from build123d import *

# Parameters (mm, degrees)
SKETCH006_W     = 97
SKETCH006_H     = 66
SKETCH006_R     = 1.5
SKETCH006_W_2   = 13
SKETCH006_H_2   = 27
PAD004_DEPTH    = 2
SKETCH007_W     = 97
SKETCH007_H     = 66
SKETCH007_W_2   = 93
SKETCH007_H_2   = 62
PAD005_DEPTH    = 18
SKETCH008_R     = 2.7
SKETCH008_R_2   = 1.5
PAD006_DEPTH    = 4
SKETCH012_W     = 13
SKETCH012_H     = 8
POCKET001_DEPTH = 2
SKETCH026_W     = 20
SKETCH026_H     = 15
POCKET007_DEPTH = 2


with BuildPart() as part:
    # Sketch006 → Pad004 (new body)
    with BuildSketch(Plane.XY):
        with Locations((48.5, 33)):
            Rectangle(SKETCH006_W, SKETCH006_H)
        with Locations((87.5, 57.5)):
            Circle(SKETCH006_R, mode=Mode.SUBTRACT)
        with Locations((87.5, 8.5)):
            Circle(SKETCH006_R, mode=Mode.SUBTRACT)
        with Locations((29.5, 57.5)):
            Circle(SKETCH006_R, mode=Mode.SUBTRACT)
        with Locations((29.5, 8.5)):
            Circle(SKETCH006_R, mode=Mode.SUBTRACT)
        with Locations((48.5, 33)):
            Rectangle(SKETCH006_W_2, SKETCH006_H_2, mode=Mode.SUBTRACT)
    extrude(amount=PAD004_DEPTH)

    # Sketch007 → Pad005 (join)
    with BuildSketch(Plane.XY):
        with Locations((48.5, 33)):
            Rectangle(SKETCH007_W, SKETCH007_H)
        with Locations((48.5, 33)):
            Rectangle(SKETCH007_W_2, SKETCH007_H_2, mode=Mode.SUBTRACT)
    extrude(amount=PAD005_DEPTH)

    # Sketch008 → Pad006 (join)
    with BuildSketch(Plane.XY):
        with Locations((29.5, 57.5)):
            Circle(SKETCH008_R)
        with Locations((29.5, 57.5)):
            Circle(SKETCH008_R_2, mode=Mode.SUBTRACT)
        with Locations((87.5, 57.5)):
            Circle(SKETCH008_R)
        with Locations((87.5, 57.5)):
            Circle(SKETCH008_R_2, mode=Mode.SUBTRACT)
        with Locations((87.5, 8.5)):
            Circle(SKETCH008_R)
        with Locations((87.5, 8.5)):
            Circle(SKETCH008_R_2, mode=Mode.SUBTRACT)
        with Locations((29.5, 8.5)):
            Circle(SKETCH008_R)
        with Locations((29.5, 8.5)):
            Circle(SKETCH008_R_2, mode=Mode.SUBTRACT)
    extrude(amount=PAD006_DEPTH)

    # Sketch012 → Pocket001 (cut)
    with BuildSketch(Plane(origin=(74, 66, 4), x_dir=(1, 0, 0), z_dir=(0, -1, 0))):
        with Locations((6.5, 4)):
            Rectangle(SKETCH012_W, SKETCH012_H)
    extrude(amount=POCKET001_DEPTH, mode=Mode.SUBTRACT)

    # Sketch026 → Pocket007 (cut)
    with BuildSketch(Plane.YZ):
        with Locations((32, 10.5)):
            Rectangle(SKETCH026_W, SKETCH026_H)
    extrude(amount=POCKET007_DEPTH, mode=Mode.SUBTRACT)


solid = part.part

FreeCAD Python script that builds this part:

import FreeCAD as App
import Part
import Sketcher

doc = App.newDocument("Part")
body = doc.addObject("PartDesign::Body", "Body")

# Sketch on XY plane
sketch1 = doc.addObject("Sketcher::SketchObject", "Sketch")
body.addObject(sketch1)
sketch1.AttachmentSupport = (doc.XY_Plane, [""])
sketch1.MapMode = "FlatFace"
sketch1.addGeometry([
    Part.LineSegment(App.Vector(0, 66, 0), App.Vector(0, 0, 0)),  # 0
    Part.LineSegment(App.Vector(0, 0, 0), App.Vector(97, 0, 0)),  # 1
    Part.LineSegment(App.Vector(97, 0, 0), App.Vector(97, 66, 0)),  # 2
    Part.LineSegment(App.Vector(97, 66, 0), App.Vector(0, 66, 0)),  # 3
    Part.Circle(App.Vector(29.5, 8.5, 0), App.Vector(0, 0, 1), 1.5),  # 4
    Part.Circle(App.Vector(87.5, 8.5, 0), App.Vector(0, 0, 1), 1.5),  # 5
    Part.LineSegment(App.Vector(55, 19.5, 0), App.Vector(42, 19.5, 0)),  # 6
    Part.LineSegment(App.Vector(42, 19.5, 0), App.Vector(42, 46.5, 0)),  # 7
    Part.LineSegment(App.Vector(42, 46.5, 0), App.Vector(55, 46.5, 0)),  # 8
    Part.LineSegment(App.Vector(55, 46.5, 0), App.Vector(55, 19.5, 0)),  # 9
    Part.Circle(App.Vector(29.5, 57.5, 0), App.Vector(0, 0, 1), 1.5),  # 10
    Part.Circle(App.Vector(87.5, 57.5, 0), App.Vector(0, 0, 1), 1.5),  # 11
], False)
sketch1.addConstraint([
    Sketcher.Constraint("Coincident", 0, 2, 1, 1),
    Sketcher.Constraint("Coincident", 1, 2, 2, 1),
    Sketcher.Constraint("Coincident", 2, 2, 3, 1),
    Sketcher.Constraint("Coincident", 3, 2, 0, 1),
    Sketcher.Constraint("Coincident", 6, 2, 7, 1),
    Sketcher.Constraint("Coincident", 7, 2, 8, 1),
    Sketcher.Constraint("Coincident", 8, 2, 9, 1),
    Sketcher.Constraint("Coincident", 9, 2, 6, 1),
    Sketcher.Constraint("Vertical", 0),
    Sketcher.Constraint("Horizontal", 1),
    Sketcher.Constraint("Vertical", 2),
    Sketcher.Constraint("Horizontal", 3),
    Sketcher.Constraint("Horizontal", 6),
    Sketcher.Constraint("Vertical", 7),
    Sketcher.Constraint("Horizontal", 8),
    Sketcher.Constraint("Vertical", 9),
    Sketcher.Constraint("Coincident", 0, 2, -1, 1),
    Sketcher.Constraint("Equal", 4, 5),
    Sketcher.Constraint("Equal", 5, 10),
    Sketcher.Constraint("Equal", 10, 11),
    Sketcher.Constraint("Horizontal", 4, 3, 5, 3),
    Sketcher.Constraint("Horizontal", 10, 3, 11, 3),
    Sketcher.Constraint("Vertical", 4, 3, 10, 3),
    Sketcher.Constraint("Vertical", 5, 3, 11, 3),
    Sketcher.Constraint("Diameter", 4, 3.0),
    Sketcher.Constraint("DistanceX", 1, 1, 1, 2, 97.0),
    Sketcher.Constraint("DistanceX", 6, 2, 6, 1, 13.0),
    Sketcher.Constraint("DistanceY", 0, 2, 0, 1, 66.0),
    Sketcher.Constraint("DistanceY", 7, 1, 7, 2, 27.0),
    Sketcher.Constraint("DistanceX", -1, 1, 6, 2, 42.0),
    Sketcher.Constraint("DistanceX", 4, 3, 5, 3, 58.0),
    Sketcher.Constraint("DistanceY", 4, 3, 10, 3, 49.0),
    Sketcher.Constraint("DistanceY", 4, 3, 6, 2, 11.0),
    Sketcher.Constraint("DistanceX", -1, 1, 4, 3, 29.5),
    Sketcher.Constraint("DistanceY", -1, 1, 4, 3, 8.5),
])
pad1 = doc.addObject("PartDesign::Pad", "Pad")
body.addObject(pad1)
pad1.Profile = sketch1
pad1.Length = 2

# Sketch on XY plane
sketch2 = doc.addObject("Sketcher::SketchObject", "Sketch001")
body.addObject(sketch2)
sketch2.AttachmentSupport = (doc.XY_Plane, [""])
sketch2.MapMode = "FlatFace"
sketch2.addGeometry([
    Part.LineSegment(App.Vector(0, 66, 0), App.Vector(0, 0, 0)),  # 0
    Part.LineSegment(App.Vector(0, 0, 0), App.Vector(97, 0, 0)),  # 1
    Part.LineSegment(App.Vector(97, 0, 0), App.Vector(97, 66, 0)),  # 2
    Part.LineSegment(App.Vector(97, 66, 0), App.Vector(0, 66, 0)),  # 3
    Part.LineSegment(App.Vector(95, 2, 0), App.Vector(2, 2, 0)),  # 4
    Part.LineSegment(App.Vector(2, 2, 0), App.Vector(2, 64, 0)),  # 5
    Part.LineSegment(App.Vector(2, 64, 0), App.Vector(95, 64, 0)),  # 6
    Part.LineSegment(App.Vector(95, 64, 0), App.Vector(95, 2, 0)),  # 7
], False)
sketch2.addConstraint([
    Sketcher.Constraint("Coincident", 0, 2, 1, 1),
    Sketcher.Constraint("Coincident", 1, 2, 2, 1),
    Sketcher.Constraint("Coincident", 2, 2, 3, 1),
    Sketcher.Constraint("Coincident", 3, 2, 0, 1),
    Sketcher.Constraint("Coincident", 4, 2, 5, 1),
    Sketcher.Constraint("Coincident", 5, 2, 6, 1),
    Sketcher.Constraint("Coincident", 6, 2, 7, 1),
    Sketcher.Constraint("Coincident", 7, 2, 4, 1),
    Sketcher.Constraint("Vertical", 0),
    Sketcher.Constraint("Horizontal", 1),
    Sketcher.Constraint("Vertical", 2),
    Sketcher.Constraint("Horizontal", 3),
    Sketcher.Constraint("Horizontal", 4),
    Sketcher.Constraint("Vertical", 5),
    Sketcher.Constraint("Horizontal", 6),
    Sketcher.Constraint("Vertical", 7),
    Sketcher.Constraint("Coincident", 0, 2, -1, 1),
    Sketcher.Constraint("DistanceX", 1, 1, 1, 2, 97.0),
    Sketcher.Constraint("DistanceX", 4, 2, 4, 1, 93.0),
    Sketcher.Constraint("DistanceY", 0, 2, 0, 1, 66.0),
    Sketcher.Constraint("DistanceY", 5, 1, 5, 2, 62.0),
    Sketcher.Constraint("DistanceX", -1, 1, 4, 2, 2.0),
    Sketcher.Constraint("DistanceY", -1, 1, 4, 2, 2.0),
])
pad2 = doc.addObject("PartDesign::Pad", "Pad001")
body.addObject(pad2)
pad2.Profile = sketch2
pad2.Length = 18

# Sketch on XY plane
sketch3 = doc.addObject("Sketcher::SketchObject", "Sketch002")
body.addObject(sketch3)
sketch3.AttachmentSupport = (doc.XY_Plane, [""])
sketch3.MapMode = "FlatFace"
sketch3.addGeometry([
    Part.Circle(App.Vector(29.5, 57.5, 0), App.Vector(0, 0, 1), 2.7),  # 0
    Part.Circle(App.Vector(29.5, 57.5, 0), App.Vector(0, 0, 1), 1.5),  # 1
    Part.Circle(App.Vector(87.5, 57.5, 0), App.Vector(0, 0, 1), 2.7),  # 2
    Part.Circle(App.Vector(87.5, 57.5, 0), App.Vector(0, 0, 1), 1.5),  # 3
    Part.Circle(App.Vector(87.5, 8.5, 0), App.Vector(0, 0, 1), 2.7),  # 4
    Part.Circle(App.Vector(87.5, 8.5, 0), App.Vector(0, 0, 1), 1.5),  # 5
    Part.Circle(App.Vector(29.5, 8.5, 0), App.Vector(0, 0, 1), 2.7),  # 6
    Part.Circle(App.Vector(29.5, 8.5, 0), App.Vector(0, 0, 1), 1.5),  # 7
], False)
sketch3.addConstraint([
    Sketcher.Constraint("Coincident", 1, 3, 0, 3),
    Sketcher.Constraint("Coincident", 3, 3, 2, 3),
    Sketcher.Constraint("Coincident", 5, 3, 4, 3),
    Sketcher.Constraint("Coincident", 7, 3, 6, 3),
    Sketcher.Constraint("Equal", 0, 2),
    Sketcher.Constraint("Equal", 1, 3),
    Sketcher.Constraint("Equal", 2, 4),
    Sketcher.Constraint("Equal", 3, 5),
    Sketcher.Constraint("Equal", 4, 6),
    Sketcher.Constraint("Equal", 5, 7),
    Sketcher.Constraint("Horizontal", 1, 3, 2, 3),
    Sketcher.Constraint("Horizontal", 5, 3, 6, 3),
    Sketcher.Constraint("Vertical", 3, 3, 4, 3),
    Sketcher.Constraint("Vertical", 1, 3, 6, 3),
    Sketcher.Constraint("Diameter", 1, 3.0),
    Sketcher.Constraint("Diameter", 0, 5.4),
    Sketcher.Constraint("DistanceX", 0, 3, 2, 3, 58.0),
    Sketcher.Constraint("DistanceY", 4, 3, 2, 3, 49.0),
    Sketcher.Constraint("DistanceX", -1, 1, 0, 3, 29.5),
    Sketcher.Constraint("DistanceY", -1, 1, 0, 3, 57.5),
])
pad3 = doc.addObject("PartDesign::Pad", "Pad002")
body.addObject(pad3)
pad3.Profile = sketch3
pad3.Length = 4

# Sketch on XZ plane
sketch4 = doc.addObject("Sketcher::SketchObject", "Sketch003")
body.addObject(sketch4)
sketch4.AttachmentSupport = (doc.XZ_Plane, [""])
sketch4.MapMode = "FlatFace"
sketch4.AttachmentOffset = App.Placement(App.Vector(0, 0, -66), App.Rotation())
sketch4.addGeometry([
    Part.LineSegment(App.Vector(74, 12, 0), App.Vector(74, 4, 0)),
    Part.LineSegment(App.Vector(74, 4, 0), App.Vector(87, 4, 0)),
    Part.LineSegment(App.Vector(87, 4, 0), App.Vector(87, 12, 0)),
    Part.LineSegment(App.Vector(87, 12, 0), App.Vector(74, 12, 0)),
], False)
sketch4.addConstraint([
    Sketcher.Constraint("Coincident", 0, 2, 1, 1),
    Sketcher.Constraint("Coincident", 1, 2, 2, 1),
    Sketcher.Constraint("Coincident", 2, 2, 3, 1),
    Sketcher.Constraint("Coincident", 3, 2, 0, 1),
    Sketcher.Constraint("Vertical", 0),
    Sketcher.Constraint("Horizontal", 1),
    Sketcher.Constraint("Vertical", 2),
    Sketcher.Constraint("Horizontal", 3),
    Sketcher.Constraint("DistanceX", 1, 1, 1, 2, 13.0),
    Sketcher.Constraint("DistanceY", 0, 2, 0, 1, 8.0),
    Sketcher.Constraint("DistanceX", -1, 1, 0, 2, 74.0),
    Sketcher.Constraint("DistanceY", -1, 1, 0, 2, 4.0),
])
pocket1 = doc.addObject("PartDesign::Pocket", "Pocket")
body.addObject(pocket1)
pocket1.Profile = sketch4
pocket1.Length = 2
pocket1.Reversed = True

# Sketch on YZ plane
sketch5 = doc.addObject("Sketcher::SketchObject", "Sketch004")
body.addObject(sketch5)
sketch5.AttachmentSupport = (doc.YZ_Plane, [""])
sketch5.MapMode = "FlatFace"
sketch5.addGeometry([
    Part.LineSegment(App.Vector(22, 18, 0), App.Vector(22, 3, 0)),
    Part.LineSegment(App.Vector(22, 3, 0), App.Vector(42, 3, 0)),
    Part.LineSegment(App.Vector(42, 3, 0), App.Vector(42, 18, 0)),
    Part.LineSegment(App.Vector(42, 18, 0), App.Vector(22, 18, 0)),
], False)
sketch5.addConstraint([
    Sketcher.Constraint("Coincident", 0, 2, 1, 1),
    Sketcher.Constraint("Coincident", 1, 2, 2, 1),
    Sketcher.Constraint("Coincident", 2, 2, 3, 1),
    Sketcher.Constraint("Coincident", 3, 2, 0, 1),
    Sketcher.Constraint("Vertical", 0),
    Sketcher.Constraint("Horizontal", 1),
    Sketcher.Constraint("Vertical", 2),
    Sketcher.Constraint("Horizontal", 3),
    Sketcher.Constraint("DistanceX", 1, 1, 1, 2, 20.0),
    Sketcher.Constraint("DistanceY", 0, 2, 0, 1, 15.0),
    Sketcher.Constraint("DistanceX", -1, 1, 0, 2, 22.0),
    Sketcher.Constraint("DistanceY", -1, 1, 0, 2, 3.0),
])
pocket2 = doc.addObject("PartDesign::Pocket", "Pocket001")
body.addObject(pocket2)
pocket2.Profile = sketch5
pocket2.Length = 2
pocket2.Reversed = True

doc.recompute()
